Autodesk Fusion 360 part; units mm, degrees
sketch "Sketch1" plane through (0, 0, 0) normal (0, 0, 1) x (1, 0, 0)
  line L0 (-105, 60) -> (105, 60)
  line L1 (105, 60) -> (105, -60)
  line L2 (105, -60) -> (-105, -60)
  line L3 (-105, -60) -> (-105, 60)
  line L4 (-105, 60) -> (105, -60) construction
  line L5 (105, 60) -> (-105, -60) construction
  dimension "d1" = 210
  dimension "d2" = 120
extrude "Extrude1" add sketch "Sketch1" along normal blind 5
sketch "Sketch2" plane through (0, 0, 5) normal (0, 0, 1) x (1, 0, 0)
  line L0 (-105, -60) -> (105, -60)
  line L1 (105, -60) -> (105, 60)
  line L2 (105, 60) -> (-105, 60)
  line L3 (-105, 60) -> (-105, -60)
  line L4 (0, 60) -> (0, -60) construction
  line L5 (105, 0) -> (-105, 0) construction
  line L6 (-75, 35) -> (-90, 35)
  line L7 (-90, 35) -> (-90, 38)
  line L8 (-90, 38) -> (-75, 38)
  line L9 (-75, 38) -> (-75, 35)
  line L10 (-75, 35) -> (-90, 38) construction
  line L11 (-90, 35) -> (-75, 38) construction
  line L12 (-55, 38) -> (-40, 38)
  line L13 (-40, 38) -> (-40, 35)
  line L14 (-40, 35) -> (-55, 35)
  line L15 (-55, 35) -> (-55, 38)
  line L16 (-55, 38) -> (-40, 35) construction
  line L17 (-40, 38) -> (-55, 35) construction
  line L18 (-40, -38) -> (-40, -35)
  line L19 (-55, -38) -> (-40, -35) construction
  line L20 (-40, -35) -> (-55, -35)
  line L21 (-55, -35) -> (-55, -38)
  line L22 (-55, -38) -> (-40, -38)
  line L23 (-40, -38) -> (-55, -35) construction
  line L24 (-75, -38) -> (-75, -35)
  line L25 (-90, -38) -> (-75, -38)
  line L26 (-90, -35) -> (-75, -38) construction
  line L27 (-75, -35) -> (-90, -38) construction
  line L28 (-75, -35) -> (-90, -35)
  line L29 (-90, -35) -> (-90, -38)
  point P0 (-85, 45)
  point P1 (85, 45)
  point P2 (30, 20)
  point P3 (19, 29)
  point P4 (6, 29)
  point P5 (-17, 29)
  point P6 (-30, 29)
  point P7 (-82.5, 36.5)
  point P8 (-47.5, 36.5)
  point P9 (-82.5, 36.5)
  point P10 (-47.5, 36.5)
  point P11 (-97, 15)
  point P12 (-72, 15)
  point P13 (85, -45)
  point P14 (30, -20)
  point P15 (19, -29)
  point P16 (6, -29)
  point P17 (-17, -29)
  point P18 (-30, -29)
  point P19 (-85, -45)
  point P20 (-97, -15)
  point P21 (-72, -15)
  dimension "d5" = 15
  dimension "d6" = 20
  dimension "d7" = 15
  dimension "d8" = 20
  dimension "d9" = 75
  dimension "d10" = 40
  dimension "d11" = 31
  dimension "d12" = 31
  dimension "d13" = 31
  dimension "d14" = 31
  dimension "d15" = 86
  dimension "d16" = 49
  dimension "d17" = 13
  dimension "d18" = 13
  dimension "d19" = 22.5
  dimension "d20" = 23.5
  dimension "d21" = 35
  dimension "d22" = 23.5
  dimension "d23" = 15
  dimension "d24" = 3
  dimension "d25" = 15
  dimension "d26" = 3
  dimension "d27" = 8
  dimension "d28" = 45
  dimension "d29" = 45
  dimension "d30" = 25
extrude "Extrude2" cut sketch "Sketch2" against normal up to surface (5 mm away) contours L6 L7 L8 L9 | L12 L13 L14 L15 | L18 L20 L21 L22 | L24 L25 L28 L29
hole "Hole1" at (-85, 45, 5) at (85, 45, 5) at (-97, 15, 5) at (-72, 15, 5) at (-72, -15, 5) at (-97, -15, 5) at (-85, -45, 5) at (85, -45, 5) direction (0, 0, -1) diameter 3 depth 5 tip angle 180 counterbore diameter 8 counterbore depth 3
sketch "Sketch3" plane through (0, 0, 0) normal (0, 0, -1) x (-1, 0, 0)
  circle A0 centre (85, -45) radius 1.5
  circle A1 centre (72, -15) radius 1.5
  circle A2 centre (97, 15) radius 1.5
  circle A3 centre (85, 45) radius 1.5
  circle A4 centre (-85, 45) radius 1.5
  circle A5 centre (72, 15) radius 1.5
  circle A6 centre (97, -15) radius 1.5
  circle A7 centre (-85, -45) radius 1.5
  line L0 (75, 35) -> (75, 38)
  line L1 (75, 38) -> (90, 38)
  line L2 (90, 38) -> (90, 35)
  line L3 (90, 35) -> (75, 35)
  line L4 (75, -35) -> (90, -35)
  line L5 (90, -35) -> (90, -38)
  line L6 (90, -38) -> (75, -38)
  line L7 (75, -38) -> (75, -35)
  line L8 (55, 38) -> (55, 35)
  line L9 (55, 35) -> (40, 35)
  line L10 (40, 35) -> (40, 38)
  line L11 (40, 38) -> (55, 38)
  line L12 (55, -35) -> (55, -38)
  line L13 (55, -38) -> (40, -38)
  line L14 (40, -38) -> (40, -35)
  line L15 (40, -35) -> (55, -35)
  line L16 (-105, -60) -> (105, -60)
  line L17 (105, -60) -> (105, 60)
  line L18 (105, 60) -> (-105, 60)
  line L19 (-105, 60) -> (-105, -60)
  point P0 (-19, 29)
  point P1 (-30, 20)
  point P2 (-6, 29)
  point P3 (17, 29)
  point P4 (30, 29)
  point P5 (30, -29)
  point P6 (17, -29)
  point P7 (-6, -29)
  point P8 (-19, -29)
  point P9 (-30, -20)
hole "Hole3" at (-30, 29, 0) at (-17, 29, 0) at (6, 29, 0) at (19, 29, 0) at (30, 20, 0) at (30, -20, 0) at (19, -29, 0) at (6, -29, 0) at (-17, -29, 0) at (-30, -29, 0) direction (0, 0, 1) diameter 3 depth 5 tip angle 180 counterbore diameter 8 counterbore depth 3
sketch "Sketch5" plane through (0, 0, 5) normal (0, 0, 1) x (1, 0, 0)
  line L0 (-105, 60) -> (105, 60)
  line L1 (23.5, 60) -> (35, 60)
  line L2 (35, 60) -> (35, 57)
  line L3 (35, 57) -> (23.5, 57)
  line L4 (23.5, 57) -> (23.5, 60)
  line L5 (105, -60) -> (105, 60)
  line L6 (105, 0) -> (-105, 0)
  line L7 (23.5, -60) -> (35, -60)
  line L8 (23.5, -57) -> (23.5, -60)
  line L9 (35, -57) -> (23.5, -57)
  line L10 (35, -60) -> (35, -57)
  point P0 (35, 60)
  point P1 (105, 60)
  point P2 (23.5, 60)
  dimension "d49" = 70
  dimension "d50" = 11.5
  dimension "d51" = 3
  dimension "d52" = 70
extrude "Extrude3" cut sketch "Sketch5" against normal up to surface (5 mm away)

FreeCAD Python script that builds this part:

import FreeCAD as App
import Part
import Sketcher

V = App.Vector
Q = App.Units.Quantity

doc = App.newDocument("Part")
body = doc.addObject("PartDesign::Body", "Body")

# Sketch on XY plane
sketch1 = body.newObject("Sketcher::SketchObject", "Sketch")
sketch1.AttachmentSupport = (doc.getObject("XY_Plane"), [""])
sketch1.MapMode = "FlatFace"
sketch1.addGeometry([
    Part.LineSegment(V(105, 60, 0), V(-105, 60, 0)),
    Part.LineSegment(V(-105, 60, 0), V(-105, -60, 0)),
    Part.LineSegment(V(-105, -60, 0), V(105, -60, 0)),
    Part.LineSegment(V(105, -60, 0), V(105, 60, 0)),
], False)
sketch1.addConstraint([
    Sketcher.Constraint("Coincident", 0, 2, 1, 1),
    Sketcher.Constraint("Coincident", 1, 2, 2, 1),
    Sketcher.Constraint("Coincident", 2, 2, 3, 1),
    Sketcher.Constraint("Coincident", 3, 2, 0, 1),
    Sketcher.Constraint("Horizontal", 0),
    Sketcher.Constraint("Vertical", 1),
    Sketcher.Constraint("Horizontal", 2),
    Sketcher.Constraint("Vertical", 3),
    Sketcher.Constraint("Symmetric", 0, 2, 2, 2, -1, 1),
    Sketcher.Constraint("DistanceX", 0, 2, 0, 1, Q("210 mm")),
    Sketcher.Constraint("DistanceY", 1, 2, 1, 1, Q("120 mm")),
])
pad1 = body.newObject("PartDesign::Pad", "Pad")
pad1.Profile = sketch1
pad1.Length = 5

# Sketch on XY plane
sketch2 = body.newObject("Sketcher::SketchObject", "Sketch001")
sketch2.AttachmentSupport = (doc.getObject("XY_Plane"), [""])
sketch2.MapMode = "FlatFace"
sketch2.AttachmentOffset = App.Placement(V(0, 0, 5), App.Rotation())
sketch2.addGeometry([
    Part.LineSegment(V(-90, 35, 0), V(-75, 35, 0)),  # 0
    Part.LineSegment(V(-75, 35, 0), V(-75, 38, 0)),  # 1
    Part.LineSegment(V(-75, 38, 0), V(-90, 38, 0)),  # 2
    Part.LineSegment(V(-90, 38, 0), V(-90, 35, 0)),  # 3
    Part.LineSegment(V(-40, 38, 0), V(-55, 38, 0)),  # 4
    Part.LineSegment(V(-55, 38, 0), V(-55, 35, 0)),  # 5
    Part.LineSegment(V(-55, 35, 0), V(-40, 35, 0)),  # 6
    Part.LineSegment(V(-40, 35, 0), V(-40, 38, 0)),  # 7
    Part.LineSegment(V(-55, -38, 0), V(-40, -38, 0)),  # 8
    Part.LineSegment(V(-40, -38, 0), V(-40, -35, 0)),  # 9
    Part.LineSegment(V(-40, -35, 0), V(-55, -35, 0)),  # 10
    Part.LineSegment(V(-55, -35, 0), V(-55, -38, 0)),  # 11
    Part.LineSegment(V(-90, -38, 0), V(-75, -38, 0)),  # 12
    Part.LineSegment(V(-75, -38, 0), V(-75, -35, 0)),  # 13
    Part.LineSegment(V(-75, -35, 0), V(-90, -35, 0)),  # 14
    Part.LineSegment(V(-90, -35, 0), V(-90, -38, 0)),  # 15
], False)
sketch2.addConstraint([
    Sketcher.Constraint("Coincident", 0, 2, 1, 1),
    Sketcher.Constraint("Coincident", 1, 2, 2, 1),
    Sketcher.Constraint("Coincident", 2, 2, 3, 1),
    Sketcher.Constraint("Coincident", 3, 2, 0, 1),
    Sketcher.Constraint("Coincident", 4, 2, 5, 1),
    Sketcher.Constraint("Coincident", 5, 2, 6, 1),
    Sketcher.Constraint("Coincident", 6, 2, 7, 1),
    Sketcher.Constraint("Coincident", 7, 2, 4, 1),
    Sketcher.Constraint("Coincident", 8, 2, 9, 1),
    Sketcher.Constraint("Coincident", 9, 2, 10, 1),
    Sketcher.Constraint("Coincident", 10, 2, 11, 1),
    Sketcher.Constraint("Coincident", 11, 2, 8, 1),
    Sketcher.Constraint("Coincident", 12, 2, 13, 1),
    Sketcher.Constraint("Coincident", 13, 2, 14, 1),
    Sketcher.Constraint("Coincident", 14, 2, 15, 1),
    Sketcher.Constraint("Coincident", 15, 2, 12, 1),
    Sketcher.Constraint("Horizontal", 0),
    Sketcher.Constraint("Vertical", 1),
    Sketcher.Constraint("Horizontal", 2),
    Sketcher.Constraint("Vertical", 3),
    Sketcher.Constraint("Horizontal", 4),
    Sketcher.Constraint("Vertical", 5),
    Sketcher.Constraint("Horizontal", 6),
    Sketcher.Constraint("Vertical", 7),
    Sketcher.Constraint("Horizontal", 8),
    Sketcher.Constraint("Vertical", 9),
    Sketcher.Constraint("Horizontal", 10),
    Sketcher.Constraint("Vertical", 11),
    Sketcher.Constraint("Horizontal", 12),
    Sketcher.Constraint("Vertical", 13),
    Sketcher.Constraint("Horizontal", 14),
    Sketcher.Constraint("Vertical", 15),
    Sketcher.Constraint("Symmetric", 7, 2, 8, 2, -1),
    Sketcher.Constraint("Symmetric", 5, 2, 10, 2, -1),
    Sketcher.Constraint("Symmetric", 1, 2, 12, 2, -1),
    Sketcher.Constraint("Symmetric", 3, 2, 14, 2, -1),
    Sketcher.Constraint("Horizontal", 2, 2, 4, 2),
    Sketcher.Constraint("Horizontal", 3, 2, 5, 2),
    Sketcher.Constraint("Equal", 2, 4),
    Sketcher.Constraint("DistanceX", 0, 1, 0, 2, Q("15 mm")),
    Sketcher.Constraint("DistanceY", 1, 1, 1, 2, Q("3 mm")),
    Sketcher.Constraint("DistanceX", 0, 2, -1, 1, Q("75 mm")),
    Sketcher.Constraint("DistanceY", -1, 1, 0, 2, Q("35 mm")),
    Sketcher.Constraint("DistanceX", 6, 2, -1, 1, Q("40 mm")),
])
pocket1 = body.newObject("PartDesign::Pocket", "Pocket")
pocket1.Profile = sketch2
pocket1.Length = 5

# Sketch on XY plane
sketch3 = body.newObject("Sketcher::SketchObject", "Sketch002")
sketch3.AttachmentSupport = (doc.getObject("XY_Plane"), [""])
sketch3.MapMode = "FlatFace"
sketch3.AttachmentOffset = App.Placement(V(0, 0, 5), App.Rotation())
sketch3.addGeometry([
    Part.Circle(V(-85, 45, 0), V(0, 0, 1), 1.5),  # 0
    Part.Circle(V(85, 45, 0), V(0, 0, 1), 1.5),  # 1
    Part.Circle(V(-97, 15, 0), V(0, 0, 1), 1.5),  # 2
    Part.Circle(V(-72, 15, 0), V(0, 0, 1), 1.5),  # 3
    Part.Circle(V(-72, -15, 0), V(0, 0, 1), 1.5),  # 4
    Part.Circle(V(-97, -15, 0), V(0, 0, 1), 1.5),  # 5
    Part.Circle(V(-85, -45, 0), V(0, 0, 1), 1.5),  # 6
    Part.Circle(V(85, -45, 0), V(0, 0, 1), 1.5),  # 7
], False)
sketch3.addConstraint([
    Sketcher.Constraint("Equal", 0, 1),
    Sketcher.Constraint("Equal", 1, 2),
    Sketcher.Constraint("Equal", 2, 3),
    Sketcher.Constraint("Equal", 3, 4),
    Sketcher.Constraint("Equal", 4, 5),
    Sketcher.Constraint("Equal", 5, 6),
    Sketcher.Constraint("Equal", 6, 7),
    Sketcher.Constraint("Symmetric", 1, 3, 6, 3, -1, 1),
    Sketcher.Constraint("Symmetric", 0, 3, 7, 3, -1, 1),
    Sketcher.Constraint("Symmetric", 0, 3, 1, 3, -2),
    Sketcher.Constraint("Symmetric", 3, 3, 4, 3, -1),
    Sketcher.Constraint("Symmetric", 2, 3, 5, 3, -1),
    Sketcher.Constraint("Horizontal", 2, 3, 3, 3),
    Sketcher.Constraint("Diameter", 0, Q("3 mm")),
    Sketcher.Constraint("DistanceX", 0, 3, -1, 1, Q("85 mm")),
    Sketcher.Constraint("DistanceY", -1, 1, 0, 3, Q("45 mm")),
    Sketcher.Constraint("DistanceX", 2, 3, -1, 1, Q("97 mm")),
    Sketcher.Constraint("DistanceY", -1, 1, 2, 3, Q("15 mm")),
    Sketcher.Constraint("DistanceX", 3, 3, -1, 1, Q("72 mm")),
])
doc.recompute()
hole = body.newObject("PartDesign::Hole", "Hole")
hole.Profile = sketch3
hole.ThreadType = "None"
hole.Diameter = 3
hole.DepthType = "Dimension"
hole.Depth = 5
hole.DrillPoint = "Flat"
hole.HoleCutType = "Counterbore"
hole.HoleCutDiameter = 8
hole.HoleCutDepth = 3

# Sketch on XY plane
sketch4 = body.newObject("Sketcher::SketchObject", "Sketch003")
sketch4.AttachmentSupport = (doc.getObject("XY_Plane"), [""])
sketch4.MapMode = "FlatFace"
sketch4.addGeometry([
    Part.Circle(V(-30, 29, 0), V(0, 0, 1), 1.5),  # 0
    Part.Circle(V(-17, 29, 0), V(0, 0, 1), 1.5),  # 1
    Part.Circle(V(6, 29, 0), V(0, 0, 1), 1.5),  # 2
    Part.Circle(V(19, 29, 0), V(0, 0, 1), 1.5),  # 3
    Part.Circle(V(30, 20, 0), V(0, 0, 1), 1.5),  # 4
    Part.Circle(V(30, -20, 0), V(0, 0, 1), 1.5),  # 5
    Part.Circle(V(19, -29, 0), V(0, 0, 1), 1.5),  # 6
    Part.Circle(V(6, -29, 0), V(0, 0, 1), 1.5),  # 7
    Part.Circle(V(-17, -29, 0), V(0, 0, 1), 1.5),  # 8
    Part.Circle(V(-30, -29, 0), V(0, 0, 1), 1.5),  # 9
], False)
sketch4.addConstraint([
    Sketcher.Constraint("Equal", 0, 1),
    Sketcher.Constraint("Equal", 1, 2),
    Sketcher.Constraint("Equal", 2, 3),
    Sketcher.Constraint("Equal", 3, 4),
    Sketcher.Constraint("Equal", 4, 5),
    Sketcher.Constraint("Equal", 5, 6),
    Sketcher.Constraint("Equal", 6, 7),
    Sketcher.Constraint("Equal", 7, 8),
    Sketcher.Constraint("Equal", 8, 9),
    Sketcher.Constraint("Symmetric", 4, 3, 5, 3, -1),
    Sketcher.Constraint("Symmetric", 3, 3, 6, 3, -1),
    Sketcher.Constraint("Symmetric", 2, 3, 7, 3, -1),
    Sketcher.Constraint("Symmetric", 1, 3, 8, 3, -1),
    Sketcher.Constraint("Symmetric", 0, 3, 9, 3, -1),
    Sketcher.Constraint("Horizontal", 0, 3, 1, 3),
    Sketcher.Constraint("Horizontal", 1, 3, 2, 3),
    Sketcher.Constraint("Horizontal", 2, 3, 3, 3),
    Sketcher.Constraint("Diameter", 0, Q("3 mm")),
    Sketcher.Constraint("DistanceX", 0, 3, -1, 1, Q("30 mm")),
    Sketcher.Constraint("DistanceY", -1, 1, 0, 3, Q("29 mm")),
    Sketcher.Constraint("DistanceX", 1, 3, -1, 1, Q("17 mm")),
    Sketcher.Constraint("DistanceX", -1, 1, 2, 3, Q("6 mm")),
    Sketcher.Constraint("DistanceX", -1, 1, 3, 3, Q("19 mm")),
    Sketcher.Constraint("DistanceX", -1, 1, 4, 3, Q("30 mm")),
    Sketcher.Constraint("DistanceY", -1, 1, 4, 3, Q("20 mm")),
])
doc.recompute()
hole2 = body.newObject("PartDesign::Hole", "Hole001")
hole2.Profile = sketch4
hole2.ThreadType = "None"
hole2.Diameter = 3
hole2.DepthType = "Dimension"
hole2.Depth = 5
hole2.DrillPoint = "Flat"
hole2.HoleCutType = "Counterbore"
hole2.HoleCutDiameter = 8
hole2.HoleCutDepth = 3
hole2.Reversed = True

# Sketch on XY plane
sketch5 = body.newObject("Sketcher::SketchObject", "Sketch004")
sketch5.AttachmentSupport = (doc.getObject("XY_Plane"), [""])
sketch5.MapMode = "FlatFace"
sketch5.AttachmentOffset = App.Placement(V(0, 0, 5), App.Rotation())
sketch5.addGeometry([
    Part.LineSegment(V(35, 60, 0), V(23.5, 60, 0)),  # 0
    Part.LineSegment(V(23.5, 60, 0), V(23.5, 57, 0)),  # 1
    Part.LineSegment(V(23.5, 57, 0), V(35, 57, 0)),  # 2
    Part.LineSegment(V(35, 57, 0), V(35, 60, 0)),  # 3
    Part.LineSegment(V(23.5, -57, 0), V(23.5, -60, 0)),  # 4
    Part.LineSegment(V(23.5, -60, 0), V(35, -60, 0)),  # 5
    Part.LineSegment(V(35, -60, 0), V(35, -57, 0)),  # 6
    Part.LineSegment(V(35, -57, 0), V(23.5, -57, 0)),  # 7
], False)
sketch5.addConstraint([
    Sketcher.Constraint("Coincident", 0, 2, 1, 1),
    Sketcher.Constraint("Coincident", 1, 2, 2, 1),
    Sketcher.Constraint("Coincident", 2, 2, 3, 1),
    Sketcher.Constraint("Coincident", 3, 2, 0, 1),
    Sketcher.Constraint("Coincident", 4, 2, 5, 1),
    Sketcher.Constraint("Coincident", 5, 2, 6, 1),
    Sketcher.Constraint("Coincident", 6, 2, 7, 1),
    Sketcher.Constraint("Coincident", 7, 2, 4, 1),
    Sketcher.Constraint("Horizontal", 0),
    Sketcher.Constraint("Vertical", 1),
    Sketcher.Constraint("Horizontal", 2),
    Sketcher.Constraint("Vertical", 3),
    Sketcher.Constraint("Vertical", 4),
    Sketcher.Constraint("Horizontal", 5),
    Sketcher.Constraint("Vertical", 6),
    Sketcher.Constraint("Horizontal", 7),
    Sketcher.Constraint("Symmetric", 0, 2, 4, 2, -1),
    Sketcher.Constraint("Symmetric", 2, 2, 6, 2, -1),
    Sketcher.Constraint("DistanceY", 1, 2, 1, 1, Q("3 mm")),
    Sketcher.Constraint("DistanceX", 0, 2, 0, 1, Q("11.5 mm")),
    Sketcher.Constraint("DistanceY", -1, 1, 0, 2, Q("60 mm")),
    Sketcher.Constraint("DistanceX", -1, 1, 2, 2, Q("35 mm")),
])
pocket2 = body.newObject("PartDesign::Pocket", "Pocket001")
pocket2.Profile = sketch5
pocket2.Length = 5

doc.recompute()
